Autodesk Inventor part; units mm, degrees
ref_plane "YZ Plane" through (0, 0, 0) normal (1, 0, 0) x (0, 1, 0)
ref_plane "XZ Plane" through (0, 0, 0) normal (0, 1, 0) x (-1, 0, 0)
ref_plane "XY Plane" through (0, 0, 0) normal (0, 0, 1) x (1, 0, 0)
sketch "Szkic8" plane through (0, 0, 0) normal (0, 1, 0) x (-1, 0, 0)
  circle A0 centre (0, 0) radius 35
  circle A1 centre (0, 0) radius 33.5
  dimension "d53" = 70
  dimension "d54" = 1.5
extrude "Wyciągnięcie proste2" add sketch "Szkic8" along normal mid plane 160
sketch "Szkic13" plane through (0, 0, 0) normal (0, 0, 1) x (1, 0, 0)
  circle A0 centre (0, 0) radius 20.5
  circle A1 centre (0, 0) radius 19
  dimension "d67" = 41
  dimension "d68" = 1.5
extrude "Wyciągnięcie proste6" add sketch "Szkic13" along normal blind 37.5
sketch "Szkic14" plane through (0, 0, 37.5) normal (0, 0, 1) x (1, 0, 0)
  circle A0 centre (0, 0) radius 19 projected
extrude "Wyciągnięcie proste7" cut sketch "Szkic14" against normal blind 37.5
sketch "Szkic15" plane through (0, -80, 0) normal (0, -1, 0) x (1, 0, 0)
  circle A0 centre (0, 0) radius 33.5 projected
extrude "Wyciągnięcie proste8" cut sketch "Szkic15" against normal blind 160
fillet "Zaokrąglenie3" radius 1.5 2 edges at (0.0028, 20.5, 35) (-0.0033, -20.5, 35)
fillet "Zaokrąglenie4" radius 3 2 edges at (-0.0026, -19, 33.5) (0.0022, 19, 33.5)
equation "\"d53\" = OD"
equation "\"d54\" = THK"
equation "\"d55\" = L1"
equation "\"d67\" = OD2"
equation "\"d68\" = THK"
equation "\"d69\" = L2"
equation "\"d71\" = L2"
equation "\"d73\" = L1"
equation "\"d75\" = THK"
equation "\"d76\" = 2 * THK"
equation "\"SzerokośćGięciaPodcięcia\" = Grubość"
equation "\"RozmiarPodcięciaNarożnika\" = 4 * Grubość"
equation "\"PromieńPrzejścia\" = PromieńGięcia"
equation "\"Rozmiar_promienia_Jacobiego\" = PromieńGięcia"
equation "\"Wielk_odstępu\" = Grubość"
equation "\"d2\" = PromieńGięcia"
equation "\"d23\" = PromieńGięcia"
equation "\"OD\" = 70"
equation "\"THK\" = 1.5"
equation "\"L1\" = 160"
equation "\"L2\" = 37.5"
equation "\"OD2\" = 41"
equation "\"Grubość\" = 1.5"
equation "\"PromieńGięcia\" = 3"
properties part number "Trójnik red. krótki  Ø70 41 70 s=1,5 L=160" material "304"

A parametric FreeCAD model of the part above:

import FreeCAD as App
import Part
import Sketcher


def edges_at(feature, points):
    """Names of the edges that pass closest to the given points."""
    edges = feature.Shape.Edges
    near = lambda p: min(range(len(edges)), key=lambda i: edges[i].distToShape(Part.Vertex(*p))[0])
    return sorted({f"Edge{near(p) + 1}" for p in points})

doc = App.newDocument("Part")
body = doc.addObject("PartDesign::Body", "Body")

sketch1 = body.newObject("Sketcher::SketchObject", "Sketch")
sketch1.AttachmentSupport = (doc.getObject("XZ_Plane"), [""])
sketch1.MapMode = "FlatFace"
sketch1.addGeometry(Part.Circle(App.Vector(0, 0, 0), App.Vector(0, 0, 1), 35), False)
sketch1.addGeometry(Part.Circle(App.Vector(0, 0, 0), App.Vector(0, 0, 1), 34), False)
sketch1.addConstraint(Sketcher.Constraint("Coincident", 0, 3, -1, 1))
sketch1.addConstraint(Sketcher.Constraint("Coincident", 1, 3, -1, 1))
sketch1.addConstraint(Sketcher.Constraint("Diameter", 0, 70.0))
sketch1.addConstraint(Sketcher.Constraint("Diameter", 1, 67.0))
pad1 = body.newObject("PartDesign::Pad", "Pad")
pad1.Profile = sketch1
pad1.Length = 160
pad1.Midplane = True

sketch2 = body.newObject("Sketcher::SketchObject", "Sketch001")
sketch2.AttachmentSupport = (doc.getObject("XY_Plane"), [""])
sketch2.MapMode = "FlatFace"
sketch2.addGeometry(Part.Circle(App.Vector(0, 0, 0), App.Vector(0, 0, 1), 20), False)
sketch2.addGeometry(Part.Circle(App.Vector(0, 0, 0), App.Vector(0, 0, 1), 19), False)
sketch2.addConstraint(Sketcher.Constraint("Coincident", 0, 3, -1, 1))
sketch2.addConstraint(Sketcher.Constraint("Coincident", 1, 3, -1, 1))
sketch2.addConstraint(Sketcher.Constraint("Diameter", 0, 41.0))
sketch2.addConstraint(Sketcher.Constraint("Diameter", 1, 38.0))
pad2 = body.newObject("PartDesign::Pad", "Pad001")
pad2.Profile = sketch2
pad2.Length = 37.5

sketch3 = body.newObject("Sketcher::SketchObject", "Sketch002")
sketch3.AttachmentSupport = (doc.getObject("XY_Plane"), [""])
sketch3.MapMode = "FlatFace"
sketch3.AttachmentOffset = App.Placement(App.Vector(0, 0, 37.5), App.Rotation())
sketch3.addGeometry(Part.Circle(App.Vector(0, 0, 0), App.Vector(0, 0, 1), 19), False)
sketch3.addConstraint(Sketcher.Constraint("Coincident", 0, 3, -1, 1))
sketch3.addConstraint(Sketcher.Constraint("Diameter", 0, 38.0))
pocket1 = body.newObject("PartDesign::Pocket", "Pocket")
pocket1.Profile = sketch3
pocket1.Length = 37.5

sketch4 = body.newObject("Sketcher::SketchObject", "Sketch003")
sketch4.AttachmentSupport = (doc.getObject("XZ_Plane"), [""])
sketch4.MapMode = "FlatFace"
sketch4.AttachmentOffset = App.Placement(App.Vector(0, 0, 80), App.Rotation())
sketch4.addGeometry(Part.Circle(App.Vector(0, 0, 0), App.Vector(0, 0, 1), 34), False)
sketch4.addConstraint(Sketcher.Constraint("Coincident", 0, 3, -1, 1))
sketch4.addConstraint(Sketcher.Constraint("Diameter", 0, 67.0))
pocket2 = body.newObject("PartDesign::Pocket", "Pocket001")
pocket2.Profile = sketch4
pocket2.Length = 160
doc.recompute()

fillet = body.newObject("PartDesign::Fillet", "Fillet")
fillet.Base = (pocket2, edges_at(pocket2, [(0.003, 20.5, 35), (-0.003, -20.5, 35)]))
fillet.Radius = 1.5
doc.recompute()

fillet2 = body.newObject("PartDesign::Fillet", "Fillet001")
fillet2.Base = (fillet, edges_at(fillet, [(-0.003, -19, 33.5), (0.002, 19, 33.5)]))
fillet2.Radius = 3

doc.recompute()
